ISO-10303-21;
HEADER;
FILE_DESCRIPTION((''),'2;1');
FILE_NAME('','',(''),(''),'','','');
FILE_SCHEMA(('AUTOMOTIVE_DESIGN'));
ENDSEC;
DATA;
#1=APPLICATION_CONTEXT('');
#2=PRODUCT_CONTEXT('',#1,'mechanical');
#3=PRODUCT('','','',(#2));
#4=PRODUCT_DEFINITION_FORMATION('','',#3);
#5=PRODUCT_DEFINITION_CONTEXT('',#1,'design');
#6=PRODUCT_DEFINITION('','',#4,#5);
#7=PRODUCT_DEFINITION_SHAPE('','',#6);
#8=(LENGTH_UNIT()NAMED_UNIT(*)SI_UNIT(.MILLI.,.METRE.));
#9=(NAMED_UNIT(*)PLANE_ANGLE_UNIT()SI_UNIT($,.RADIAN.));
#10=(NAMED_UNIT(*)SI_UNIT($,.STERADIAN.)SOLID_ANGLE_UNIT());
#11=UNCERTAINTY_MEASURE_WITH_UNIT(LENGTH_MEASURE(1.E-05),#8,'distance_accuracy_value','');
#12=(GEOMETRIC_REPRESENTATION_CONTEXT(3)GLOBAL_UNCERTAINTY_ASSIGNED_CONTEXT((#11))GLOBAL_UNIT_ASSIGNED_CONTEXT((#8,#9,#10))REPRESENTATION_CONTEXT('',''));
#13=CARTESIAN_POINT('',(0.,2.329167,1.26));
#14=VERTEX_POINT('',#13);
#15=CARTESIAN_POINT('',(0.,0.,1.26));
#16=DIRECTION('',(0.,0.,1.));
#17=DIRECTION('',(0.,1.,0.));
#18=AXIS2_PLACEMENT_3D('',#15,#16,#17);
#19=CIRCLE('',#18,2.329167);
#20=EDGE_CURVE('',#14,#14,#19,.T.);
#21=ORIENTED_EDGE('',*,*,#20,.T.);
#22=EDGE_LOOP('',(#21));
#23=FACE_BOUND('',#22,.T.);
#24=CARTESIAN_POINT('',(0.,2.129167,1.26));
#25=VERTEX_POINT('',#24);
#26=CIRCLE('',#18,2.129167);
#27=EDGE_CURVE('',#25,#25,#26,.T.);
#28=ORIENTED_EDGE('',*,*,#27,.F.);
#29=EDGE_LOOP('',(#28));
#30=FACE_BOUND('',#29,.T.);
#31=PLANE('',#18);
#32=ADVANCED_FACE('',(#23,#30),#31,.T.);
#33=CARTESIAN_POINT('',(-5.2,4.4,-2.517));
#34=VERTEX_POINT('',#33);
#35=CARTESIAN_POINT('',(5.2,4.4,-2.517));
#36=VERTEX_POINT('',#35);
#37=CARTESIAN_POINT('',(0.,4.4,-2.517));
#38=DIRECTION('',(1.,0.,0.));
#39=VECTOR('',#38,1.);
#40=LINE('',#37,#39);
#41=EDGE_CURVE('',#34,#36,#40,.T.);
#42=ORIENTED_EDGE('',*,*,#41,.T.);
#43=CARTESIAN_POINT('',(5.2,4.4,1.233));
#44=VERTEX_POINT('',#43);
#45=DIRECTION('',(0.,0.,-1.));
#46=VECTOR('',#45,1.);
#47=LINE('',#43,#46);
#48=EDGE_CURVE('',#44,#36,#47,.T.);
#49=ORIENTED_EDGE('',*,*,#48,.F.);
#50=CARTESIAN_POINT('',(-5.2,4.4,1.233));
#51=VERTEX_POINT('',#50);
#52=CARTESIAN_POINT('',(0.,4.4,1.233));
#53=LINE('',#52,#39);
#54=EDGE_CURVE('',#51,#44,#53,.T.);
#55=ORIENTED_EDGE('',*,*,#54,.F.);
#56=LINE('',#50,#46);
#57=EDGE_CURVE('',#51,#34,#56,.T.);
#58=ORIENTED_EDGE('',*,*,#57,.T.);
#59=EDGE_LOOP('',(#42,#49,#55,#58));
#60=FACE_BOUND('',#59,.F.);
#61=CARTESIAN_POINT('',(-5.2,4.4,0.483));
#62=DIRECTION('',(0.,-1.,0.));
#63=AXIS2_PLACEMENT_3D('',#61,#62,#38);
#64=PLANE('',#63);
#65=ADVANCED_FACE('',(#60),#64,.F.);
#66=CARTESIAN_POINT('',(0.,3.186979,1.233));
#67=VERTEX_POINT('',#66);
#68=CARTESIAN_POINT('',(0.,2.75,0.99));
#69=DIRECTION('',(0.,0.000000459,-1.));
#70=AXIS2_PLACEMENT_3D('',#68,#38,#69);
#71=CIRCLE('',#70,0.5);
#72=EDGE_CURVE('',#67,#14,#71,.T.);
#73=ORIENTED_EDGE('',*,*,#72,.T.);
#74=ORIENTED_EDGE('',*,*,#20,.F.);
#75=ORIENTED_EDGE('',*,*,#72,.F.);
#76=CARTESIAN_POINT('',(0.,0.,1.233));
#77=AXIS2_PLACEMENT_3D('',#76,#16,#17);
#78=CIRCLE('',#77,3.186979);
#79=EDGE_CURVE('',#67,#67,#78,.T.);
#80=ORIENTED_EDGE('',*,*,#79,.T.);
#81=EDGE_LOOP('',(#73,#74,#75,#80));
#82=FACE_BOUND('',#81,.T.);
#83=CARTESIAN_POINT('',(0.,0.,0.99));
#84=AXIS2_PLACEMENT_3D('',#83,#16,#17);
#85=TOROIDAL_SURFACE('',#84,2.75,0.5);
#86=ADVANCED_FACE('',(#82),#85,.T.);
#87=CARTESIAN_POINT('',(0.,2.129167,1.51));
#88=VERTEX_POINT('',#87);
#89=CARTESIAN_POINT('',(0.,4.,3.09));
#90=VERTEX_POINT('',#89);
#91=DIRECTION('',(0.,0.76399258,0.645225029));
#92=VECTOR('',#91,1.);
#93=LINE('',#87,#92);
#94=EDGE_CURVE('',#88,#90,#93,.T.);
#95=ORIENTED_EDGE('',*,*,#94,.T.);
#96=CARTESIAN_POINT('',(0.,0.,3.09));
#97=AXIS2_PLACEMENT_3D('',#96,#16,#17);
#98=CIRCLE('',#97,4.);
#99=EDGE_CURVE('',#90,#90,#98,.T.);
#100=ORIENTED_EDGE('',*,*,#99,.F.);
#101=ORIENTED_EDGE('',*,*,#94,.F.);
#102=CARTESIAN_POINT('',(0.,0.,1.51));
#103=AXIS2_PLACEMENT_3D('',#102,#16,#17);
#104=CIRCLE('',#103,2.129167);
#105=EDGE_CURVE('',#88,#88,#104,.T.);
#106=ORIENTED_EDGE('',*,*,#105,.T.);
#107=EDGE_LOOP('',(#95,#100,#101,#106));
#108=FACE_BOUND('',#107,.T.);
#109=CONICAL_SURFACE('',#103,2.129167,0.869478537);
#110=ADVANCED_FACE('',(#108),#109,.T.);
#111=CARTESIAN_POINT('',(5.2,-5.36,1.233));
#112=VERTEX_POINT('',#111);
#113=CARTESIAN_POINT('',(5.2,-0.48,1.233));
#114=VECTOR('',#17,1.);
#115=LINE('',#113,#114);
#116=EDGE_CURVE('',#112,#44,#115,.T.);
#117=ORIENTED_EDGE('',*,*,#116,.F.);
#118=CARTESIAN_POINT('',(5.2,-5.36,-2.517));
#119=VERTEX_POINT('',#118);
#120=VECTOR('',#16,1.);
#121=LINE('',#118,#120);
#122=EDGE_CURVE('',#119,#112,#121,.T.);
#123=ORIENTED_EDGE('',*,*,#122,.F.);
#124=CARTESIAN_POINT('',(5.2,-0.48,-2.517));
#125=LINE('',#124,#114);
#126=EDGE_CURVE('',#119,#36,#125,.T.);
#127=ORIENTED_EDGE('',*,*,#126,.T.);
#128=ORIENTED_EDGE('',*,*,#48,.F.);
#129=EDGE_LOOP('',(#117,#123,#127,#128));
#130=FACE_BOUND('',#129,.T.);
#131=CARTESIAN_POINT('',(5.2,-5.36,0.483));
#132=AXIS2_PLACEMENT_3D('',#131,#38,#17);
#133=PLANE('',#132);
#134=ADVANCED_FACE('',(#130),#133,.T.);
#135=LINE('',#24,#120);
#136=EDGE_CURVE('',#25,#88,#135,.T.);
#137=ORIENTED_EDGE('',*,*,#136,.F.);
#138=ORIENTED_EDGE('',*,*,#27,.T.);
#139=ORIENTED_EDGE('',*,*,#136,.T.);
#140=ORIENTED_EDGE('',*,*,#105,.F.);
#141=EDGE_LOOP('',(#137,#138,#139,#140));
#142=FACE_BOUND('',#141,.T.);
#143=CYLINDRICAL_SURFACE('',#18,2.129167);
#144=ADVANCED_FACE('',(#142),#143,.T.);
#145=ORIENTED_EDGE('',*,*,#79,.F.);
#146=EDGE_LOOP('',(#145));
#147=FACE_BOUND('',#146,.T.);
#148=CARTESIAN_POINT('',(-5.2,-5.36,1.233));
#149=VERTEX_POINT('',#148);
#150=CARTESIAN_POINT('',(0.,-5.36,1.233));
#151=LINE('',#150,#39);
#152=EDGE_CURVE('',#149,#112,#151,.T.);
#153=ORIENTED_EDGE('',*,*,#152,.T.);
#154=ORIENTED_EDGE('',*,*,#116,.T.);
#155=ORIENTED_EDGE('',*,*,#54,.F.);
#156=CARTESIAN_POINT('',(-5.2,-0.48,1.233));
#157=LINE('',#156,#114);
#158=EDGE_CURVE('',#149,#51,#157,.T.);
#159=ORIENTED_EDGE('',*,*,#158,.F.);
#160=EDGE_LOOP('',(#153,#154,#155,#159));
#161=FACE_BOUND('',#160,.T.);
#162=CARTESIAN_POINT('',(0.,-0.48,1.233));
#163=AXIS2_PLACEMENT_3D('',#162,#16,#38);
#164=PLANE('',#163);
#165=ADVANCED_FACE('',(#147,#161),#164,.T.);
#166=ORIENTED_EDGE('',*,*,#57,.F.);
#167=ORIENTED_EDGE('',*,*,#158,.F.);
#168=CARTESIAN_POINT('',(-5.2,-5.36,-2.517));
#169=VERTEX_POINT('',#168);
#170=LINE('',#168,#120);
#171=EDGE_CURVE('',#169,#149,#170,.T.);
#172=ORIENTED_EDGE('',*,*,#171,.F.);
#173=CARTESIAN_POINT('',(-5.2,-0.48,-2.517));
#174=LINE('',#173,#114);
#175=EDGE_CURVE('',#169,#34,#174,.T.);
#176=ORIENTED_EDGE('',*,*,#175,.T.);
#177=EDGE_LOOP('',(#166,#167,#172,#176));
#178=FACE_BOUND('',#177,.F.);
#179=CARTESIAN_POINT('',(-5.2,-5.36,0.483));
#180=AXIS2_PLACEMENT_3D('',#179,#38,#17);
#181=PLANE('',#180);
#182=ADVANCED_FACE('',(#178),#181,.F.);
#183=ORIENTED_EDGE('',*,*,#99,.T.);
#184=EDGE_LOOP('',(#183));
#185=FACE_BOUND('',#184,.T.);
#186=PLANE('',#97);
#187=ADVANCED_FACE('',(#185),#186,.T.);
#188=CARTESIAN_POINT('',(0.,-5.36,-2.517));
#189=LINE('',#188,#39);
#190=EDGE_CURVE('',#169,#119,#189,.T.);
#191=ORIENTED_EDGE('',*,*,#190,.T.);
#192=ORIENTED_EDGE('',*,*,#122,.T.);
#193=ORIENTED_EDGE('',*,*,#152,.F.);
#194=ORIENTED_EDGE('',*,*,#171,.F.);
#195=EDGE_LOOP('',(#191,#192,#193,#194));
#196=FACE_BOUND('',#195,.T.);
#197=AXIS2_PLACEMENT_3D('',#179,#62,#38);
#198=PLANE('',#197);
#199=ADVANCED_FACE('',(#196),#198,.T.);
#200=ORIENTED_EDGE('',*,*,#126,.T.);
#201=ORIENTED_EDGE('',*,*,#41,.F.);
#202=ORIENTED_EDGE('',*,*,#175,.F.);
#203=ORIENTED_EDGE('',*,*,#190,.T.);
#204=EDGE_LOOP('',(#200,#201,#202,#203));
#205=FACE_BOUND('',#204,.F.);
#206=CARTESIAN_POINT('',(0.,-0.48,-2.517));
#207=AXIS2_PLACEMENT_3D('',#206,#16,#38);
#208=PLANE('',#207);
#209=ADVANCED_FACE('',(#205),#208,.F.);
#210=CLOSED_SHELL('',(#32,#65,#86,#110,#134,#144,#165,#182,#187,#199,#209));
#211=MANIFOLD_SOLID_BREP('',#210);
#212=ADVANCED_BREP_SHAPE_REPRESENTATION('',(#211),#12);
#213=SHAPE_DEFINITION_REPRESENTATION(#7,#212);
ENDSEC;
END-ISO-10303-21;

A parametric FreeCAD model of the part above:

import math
import FreeCAD as App
import Part
import Sketcher

V = App.Vector


def add_polygon(sketch, points):
    """Adds a closed chain of lines whose ends are joined by coincident constraints."""
    first, n = sketch.GeometryCount, len(points)
    for a, b in zip(points, points[1:] + points[:1]):
        sketch.addGeometry(Part.LineSegment(App.Vector(*a, 0), App.Vector(*b, 0)), False)
    for i in range(n):
        sketch.addConstraint(Sketcher.Constraint("Coincident", first + i, 2, first + (i + 1) % n, 1))

doc = App.newDocument("Part")
body = doc.addObject("PartDesign::Body", "Body")

sketch1 = body.newObject("Sketcher::SketchObject", "Sketch")
sketch1.AttachmentSupport = (doc.getObject("YZ_Plane"), [""])
sketch1.MapMode = "FlatFace"
sketch1.addGeometry([
    Part.LineSegment(V(0, 0.49, 0), V(2.75, 0.49, 0)),
    Part.ArcOfCircle(Part.Circle(V(2.75, 0.99, 0), V(0, 0, 1), 0.5), math.radians(-90), math.radians(147)),
    Part.LineSegment(V(2.33, 1.26, 0), V(2.13, 1.26, 0)),
    Part.LineSegment(V(2.13, 1.26, 0), V(2.13, 1.51, 0)),
    Part.LineSegment(V(2.13, 1.51, 0), V(4, 3.09, 0)),
    Part.LineSegment(V(4, 3.09, 0), V(0, 3.09, 0)),
    Part.LineSegment(V(0, 3.09, 0), V(0, 0.49, 0)),
], False)
sketch1.addConstraint([
    Sketcher.Constraint("Tangent", 0, 2, 1, 1),
    Sketcher.Constraint("Coincident", 1, 2, 2, 1),
    Sketcher.Constraint("Coincident", 2, 2, 3, 1),
    Sketcher.Constraint("Coincident", 3, 2, 4, 1),
    Sketcher.Constraint("Coincident", 4, 2, 5, 1),
    Sketcher.Constraint("Coincident", 5, 2, 6, 1),
    Sketcher.Constraint("Coincident", 6, 2, 0, 1),
    Sketcher.Constraint("Horizontal", 0),
    Sketcher.Constraint("Horizontal", 2),
    Sketcher.Constraint("Vertical", 3),
    Sketcher.Constraint("Horizontal", 5),
    Sketcher.Constraint("Vertical", 6),
    Sketcher.Constraint("PointOnObject", 5, 2, -2),
    Sketcher.Constraint("Radius", 1, 0.5),
    Sketcher.Constraint("DistanceX", 5, 2, 5, 1, 4.0),
    Sketcher.Constraint("DistanceX", 2, 2, 2, 1, 0.2),
    Sketcher.Constraint("DistanceY", 6, 2, 6, 1, 2.6),
    Sketcher.Constraint("DistanceX", 0, 1, 0, 2, 2.75),
    Sketcher.Constraint("DistanceY", 3, 1, 3, 2, 0.25),
    Sketcher.Constraint("DistanceY", -1, 1, 1, 3, 0.99),
    Sketcher.Constraint("DistanceY", -1, 1, 1, 2, 1.26),
])
revolution = body.newObject("PartDesign::Revolution", "Revolution")
revolution.Profile = sketch1
revolution.ReferenceAxis = (sketch1, ["V_Axis"])
revolution.Angle = 360
body2 = doc.addObject("PartDesign::Body", "Body001")

sketch2 = body2.newObject("Sketcher::SketchObject", "Sketch001")
sketch2.AttachmentSupport = (doc.getObject("XY_Plane001"), [""])
sketch2.MapMode = "FlatFace"
add_polygon(sketch2, [(-5, 4), (-5, -5), (5, -5), (5, 4)])
sketch2.addConstraint([
    Sketcher.Constraint("Vertical", 0),
    Sketcher.Constraint("Horizontal", 1),
    Sketcher.Constraint("Vertical", 2),
    Sketcher.Constraint("Horizontal", 3),
    Sketcher.Constraint("DistanceX", 1, 1, 1, 2, 10.4),
    Sketcher.Constraint("DistanceY", 0, 2, 0, 1, 9.76),
    Sketcher.Constraint("DistanceX", 0, 2, -1, 1, 5.2),
    Sketcher.Constraint("DistanceY", -1, 1, 2, 2, 4.4),
])
pad1 = body2.newObject("PartDesign::Pad", "Pad")
pad1.Profile = sketch2
pad1.Type = "TwoLengths"
pad1.Length = 0.75
pad1.Length2 = 3
body3 = doc.addObject("PartDesign::Body", "Body002")
doc.recompute()

body2.Placement = App.Placement(V(0, 0, 0.483), App.Rotation(V(0, 0, 1), 0))
boolean = body3.newObject("PartDesign::Boolean", "Boolean")
boolean.Type = "Fuse"
boolean.addObjects([body2])
doc.recompute()

boolean2 = body3.newObject("PartDesign::Boolean", "Boolean001")
boolean2.Type = "Fuse"
boolean2.addObjects([body])

doc.recompute()
